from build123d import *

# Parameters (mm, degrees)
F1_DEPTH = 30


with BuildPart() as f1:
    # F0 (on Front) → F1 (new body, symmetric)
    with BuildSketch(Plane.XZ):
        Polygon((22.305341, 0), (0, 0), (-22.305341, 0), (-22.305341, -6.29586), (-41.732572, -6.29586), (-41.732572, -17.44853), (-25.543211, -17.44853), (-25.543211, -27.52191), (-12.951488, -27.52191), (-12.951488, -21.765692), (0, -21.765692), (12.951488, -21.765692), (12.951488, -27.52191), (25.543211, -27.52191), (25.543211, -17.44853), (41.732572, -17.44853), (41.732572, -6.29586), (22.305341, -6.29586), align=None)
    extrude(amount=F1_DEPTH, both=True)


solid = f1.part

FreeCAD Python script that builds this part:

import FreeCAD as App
import Part
import Sketcher
Q = App.Units.Quantity

doc = App.newDocument("Part")
body = doc.addObject("PartDesign::Body", "Body")

# Sketch on XZ plane
sketch1 = body.newObject("Sketcher::SketchObject", "Sketch")
sketch1.AttachmentSupport = (doc.getObject("XZ_Plane"), [""])
sketch1.MapMode = "FlatFace"
sketch1.addGeometry(Part.LineSegment(App.Vector(22, 0, 0), App.Vector(-22, 0, 0)), False)
sketch1.addGeometry(Part.LineSegment(App.Vector(-22, 0, 0), App.Vector(-22, -6, 0)), False)
sketch1.addGeometry(Part.LineSegment(App.Vector(-22, -6, 0), App.Vector(-42, -6, 0)), False)
sketch1.addGeometry(Part.LineSegment(App.Vector(-42, -6, 0), App.Vector(-42, -17, 0)), False)
sketch1.addGeometry(Part.LineSegment(App.Vector(-42, -17, 0), App.Vector(-26, -17, 0)), False)
sketch1.addGeometry(Part.LineSegment(App.Vector(-26, -17, 0), App.Vector(-26, -28, 0)), False)
sketch1.addGeometry(Part.LineSegment(App.Vector(-26, -28, 0), App.Vector(-13, -28, 0)), False)
sketch1.addGeometry(Part.LineSegment(App.Vector(-13, -28, 0), App.Vector(-13, -22, 0)), False)
sketch1.addGeometry(Part.LineSegment(App.Vector(-13, -22, 0), App.Vector(13, -22, 0)), False)
sketch1.addGeometry(Part.LineSegment(App.Vector(13, -22, 0), App.Vector(13, -28, 0)), False)
sketch1.addGeometry(Part.LineSegment(App.Vector(13, -28, 0), App.Vector(26, -28, 0)), False)
sketch1.addGeometry(Part.LineSegment(App.Vector(26, -28, 0), App.Vector(26, -17, 0)), False)
sketch1.addGeometry(Part.LineSegment(App.Vector(26, -17, 0), App.Vector(42, -17, 0)), False)
sketch1.addGeometry(Part.LineSegment(App.Vector(42, -17, 0), App.Vector(42, -6, 0)), False)
sketch1.addGeometry(Part.LineSegment(App.Vector(42, -6, 0), App.Vector(22, -6, 0)), False)
sketch1.addGeometry(Part.LineSegment(App.Vector(22, -6, 0), App.Vector(22, 0, 0)), False)
sketch1.addConstraint(Sketcher.Constraint("Coincident", 0, 2, 1, 1))
sketch1.addConstraint(Sketcher.Constraint("Coincident", 1, 2, 2, 1))
sketch1.addConstraint(Sketcher.Constraint("Coincident", 2, 2, 3, 1))
sketch1.addConstraint(Sketcher.Constraint("Coincident", 3, 2, 4, 1))
sketch1.addConstraint(Sketcher.Constraint("Coincident", 4, 2, 5, 1))
sketch1.addConstraint(Sketcher.Constraint("Coincident", 5, 2, 6, 1))
sketch1.addConstraint(Sketcher.Constraint("Coincident", 6, 2, 7, 1))
sketch1.addConstraint(Sketcher.Constraint("Coincident", 7, 2, 8, 1))
sketch1.addConstraint(Sketcher.Constraint("Coincident", 8, 2, 9, 1))
sketch1.addConstraint(Sketcher.Constraint("Coincident", 9, 2, 10, 1))
sketch1.addConstraint(Sketcher.Constraint("Coincident", 10, 2, 11, 1))
sketch1.addConstraint(Sketcher.Constraint("Coincident", 11, 2, 12, 1))
sketch1.addConstraint(Sketcher.Constraint("Coincident", 12, 2, 13, 1))
sketch1.addConstraint(Sketcher.Constraint("Coincident", 13, 2, 14, 1))
sketch1.addConstraint(Sketcher.Constraint("Coincident", 14, 2, 15, 1))
sketch1.addConstraint(Sketcher.Constraint("Coincident", 15, 2, 0, 1))
sketch1.addConstraint(Sketcher.Constraint("Horizontal", 0))
sketch1.addConstraint(Sketcher.Constraint("Vertical", 1))
sketch1.addConstraint(Sketcher.Constraint("Horizontal", 2))
sketch1.addConstraint(Sketcher.Constraint("Vertical", 3))
sketch1.addConstraint(Sketcher.Constraint("Horizontal", 4))
sketch1.addConstraint(Sketcher.Constraint("Vertical", 5))
sketch1.addConstraint(Sketcher.Constraint("Horizontal", 6))
sketch1.addConstraint(Sketcher.Constraint("Vertical", 7))
sketch1.addConstraint(Sketcher.Constraint("Horizontal", 8))
sketch1.addConstraint(Sketcher.Constraint("Vertical", 9))
sketch1.addConstraint(Sketcher.Constraint("Horizontal", 10))
sketch1.addConstraint(Sketcher.Constraint("Vertical", 11))
sketch1.addConstraint(Sketcher.Constraint("Horizontal", 12))
sketch1.addConstraint(Sketcher.Constraint("Vertical", 13))
sketch1.addConstraint(Sketcher.Constraint("Horizontal", 14))
sketch1.addConstraint(Sketcher.Constraint("Vertical", 15))
sketch1.addConstraint(Sketcher.Constraint("Symmetric", 0, 2, 15, 2, -1, 1))
sketch1.addConstraint(Sketcher.Constraint("Symmetric", 6, 2, 9, 2, -2))
sketch1.addConstraint(Sketcher.Constraint("Symmetric", 4, 2, 11, 2, -2))
sketch1.addConstraint(Sketcher.Constraint("Symmetric", 2, 2, 13, 2, -2))
sketch1.addConstraint(Sketcher.Constraint("DistanceX", 0, 2, 0, 1, Q("44.610682 mm")))
sketch1.addConstraint(Sketcher.Constraint("DistanceX", 2, 2, 2, 1, Q("19.427231 mm")))
sketch1.addConstraint(Sketcher.Constraint("DistanceX", 4, 1, 4, 2, Q("16.189361 mm")))
sketch1.addConstraint(Sketcher.Constraint("DistanceY", 1, 2, 1, 1, Q("6.29586 mm")))
sketch1.addConstraint(Sketcher.Constraint("DistanceY", 3, 2, 3, 1, Q("11.15267 mm")))
sketch1.addConstraint(Sketcher.Constraint("DistanceY", 5, 2, 5, 1, Q("10.07338 mm")))
sketch1.addConstraint(Sketcher.Constraint("DistanceX", 4, 2, 8, 2, Q("38.494699 mm")))
sketch1.addConstraint(Sketcher.Constraint("DistanceY", 7, 1, 7, 2, Q("5.756218 mm")))
pad1 = body.newObject("PartDesign::Pad", "Pad")
pad1.Profile = sketch1
pad1.Length = 60
pad1.Midplane = True

doc.recompute()
